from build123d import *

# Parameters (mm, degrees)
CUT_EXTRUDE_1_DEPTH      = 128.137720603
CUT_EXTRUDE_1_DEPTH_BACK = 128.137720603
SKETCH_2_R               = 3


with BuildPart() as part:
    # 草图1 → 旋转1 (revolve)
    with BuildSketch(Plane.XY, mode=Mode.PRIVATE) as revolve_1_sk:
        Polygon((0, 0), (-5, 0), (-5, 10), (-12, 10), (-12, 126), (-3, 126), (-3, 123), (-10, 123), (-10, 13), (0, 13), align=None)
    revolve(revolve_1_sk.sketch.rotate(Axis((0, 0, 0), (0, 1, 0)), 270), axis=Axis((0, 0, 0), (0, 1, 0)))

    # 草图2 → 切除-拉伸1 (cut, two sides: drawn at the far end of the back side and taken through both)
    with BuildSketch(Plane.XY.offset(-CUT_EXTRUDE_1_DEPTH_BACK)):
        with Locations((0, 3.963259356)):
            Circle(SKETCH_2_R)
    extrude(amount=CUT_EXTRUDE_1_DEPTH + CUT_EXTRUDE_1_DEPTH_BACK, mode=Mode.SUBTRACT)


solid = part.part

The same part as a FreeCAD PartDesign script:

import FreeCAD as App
import Part
import Sketcher
from FreeCAD import Vector
Q = App.Units.Quantity


def add_polygon(sketch, points):
    """Adds a closed chain of lines whose ends are joined by coincident constraints."""
    first, n = sketch.GeometryCount, len(points)
    for a, b in zip(points, points[1:] + points[:1]):
        sketch.addGeometry(Part.LineSegment(App.Vector(*a, 0), App.Vector(*b, 0)), False)
    for i in range(n):
        sketch.addConstraint(Sketcher.Constraint("Coincident", first + i, 2, first + (i + 1) % n, 1))

doc = App.newDocument("Part")
body = doc.addObject("PartDesign::Body", "Body")

sketch1 = doc.addObject("Sketcher::SketchObject", "Sketch")
body.addObject(sketch1)
sketch1.AttachmentSupport = (doc.XY_Plane, [""])
sketch1.MapMode = "FlatFace"
add_polygon(sketch1, [(-5, 0), (0, 0), (0, 13), (-10, 13), (-10, 123), (-3, 123), (-3, 126), (-12, 126), (-12, 10), (-5, 10)])
sketch1.addConstraint([
    Sketcher.Constraint("Horizontal", 0),
    Sketcher.Constraint("Vertical", 1),
    Sketcher.Constraint("Horizontal", 2),
    Sketcher.Constraint("Vertical", 3),
    Sketcher.Constraint("Horizontal", 4),
    Sketcher.Constraint("Vertical", 5),
    Sketcher.Constraint("Horizontal", 6),
    Sketcher.Constraint("Vertical", 7),
    Sketcher.Constraint("Horizontal", 8),
    Sketcher.Constraint("Vertical", 9),
    Sketcher.Constraint("Coincident", 0, 2, -1, 1),
    Sketcher.Constraint("Equal", 4, 8),
    Sketcher.Constraint("Equal", 2, 9),
    Sketcher.Constraint("DistanceX", 0, 1, 0, 2, Q("5 mm")),
    Sketcher.Constraint("DistanceX", 2, 2, 2, 1, Q("10 mm")),
    Sketcher.Constraint("DistanceX", 4, 1, 4, 2, Q("7 mm")),
    Sketcher.Constraint("DistanceY", 1, 1, 1, 2, Q("13 mm")),
    Sketcher.Constraint("DistanceY", 3, 1, 3, 2, Q("110 mm")),
    Sketcher.Constraint("DistanceY", 5, 1, 5, 2, Q("3 mm")),
])
revolution = doc.addObject("PartDesign::Revolution", "Revolution")
body.addObject(revolution)
revolution.Profile = sketch1
revolution.ReferenceAxis = (sketch1, ["V_Axis"])
revolution.Angle = 360

sketch2 = doc.addObject("Sketcher::SketchObject", "Sketch001")
body.addObject(sketch2)
sketch2.AttachmentSupport = (doc.XY_Plane, [""])
sketch2.MapMode = "FlatFace"
sketch2.addGeometry(Part.Circle(Vector(0, 4, 0), Vector(0, 0, 1), 3), False)
sketch2.addConstraint([
    Sketcher.Constraint("PointOnObject", 0, 3, -2),
    Sketcher.Constraint("Diameter", 0, Q("6 mm")),
    Sketcher.Constraint("DistanceY", -1, 1, 0, 3, Q("3.963259 mm")),
])
pocket1 = doc.addObject("PartDesign::Pocket", "Pocket")
body.addObject(pocket1)
pocket1.Profile = sketch2
pocket1.Type = "ThroughAll"
pocket1.Midplane = True

doc.recompute()
